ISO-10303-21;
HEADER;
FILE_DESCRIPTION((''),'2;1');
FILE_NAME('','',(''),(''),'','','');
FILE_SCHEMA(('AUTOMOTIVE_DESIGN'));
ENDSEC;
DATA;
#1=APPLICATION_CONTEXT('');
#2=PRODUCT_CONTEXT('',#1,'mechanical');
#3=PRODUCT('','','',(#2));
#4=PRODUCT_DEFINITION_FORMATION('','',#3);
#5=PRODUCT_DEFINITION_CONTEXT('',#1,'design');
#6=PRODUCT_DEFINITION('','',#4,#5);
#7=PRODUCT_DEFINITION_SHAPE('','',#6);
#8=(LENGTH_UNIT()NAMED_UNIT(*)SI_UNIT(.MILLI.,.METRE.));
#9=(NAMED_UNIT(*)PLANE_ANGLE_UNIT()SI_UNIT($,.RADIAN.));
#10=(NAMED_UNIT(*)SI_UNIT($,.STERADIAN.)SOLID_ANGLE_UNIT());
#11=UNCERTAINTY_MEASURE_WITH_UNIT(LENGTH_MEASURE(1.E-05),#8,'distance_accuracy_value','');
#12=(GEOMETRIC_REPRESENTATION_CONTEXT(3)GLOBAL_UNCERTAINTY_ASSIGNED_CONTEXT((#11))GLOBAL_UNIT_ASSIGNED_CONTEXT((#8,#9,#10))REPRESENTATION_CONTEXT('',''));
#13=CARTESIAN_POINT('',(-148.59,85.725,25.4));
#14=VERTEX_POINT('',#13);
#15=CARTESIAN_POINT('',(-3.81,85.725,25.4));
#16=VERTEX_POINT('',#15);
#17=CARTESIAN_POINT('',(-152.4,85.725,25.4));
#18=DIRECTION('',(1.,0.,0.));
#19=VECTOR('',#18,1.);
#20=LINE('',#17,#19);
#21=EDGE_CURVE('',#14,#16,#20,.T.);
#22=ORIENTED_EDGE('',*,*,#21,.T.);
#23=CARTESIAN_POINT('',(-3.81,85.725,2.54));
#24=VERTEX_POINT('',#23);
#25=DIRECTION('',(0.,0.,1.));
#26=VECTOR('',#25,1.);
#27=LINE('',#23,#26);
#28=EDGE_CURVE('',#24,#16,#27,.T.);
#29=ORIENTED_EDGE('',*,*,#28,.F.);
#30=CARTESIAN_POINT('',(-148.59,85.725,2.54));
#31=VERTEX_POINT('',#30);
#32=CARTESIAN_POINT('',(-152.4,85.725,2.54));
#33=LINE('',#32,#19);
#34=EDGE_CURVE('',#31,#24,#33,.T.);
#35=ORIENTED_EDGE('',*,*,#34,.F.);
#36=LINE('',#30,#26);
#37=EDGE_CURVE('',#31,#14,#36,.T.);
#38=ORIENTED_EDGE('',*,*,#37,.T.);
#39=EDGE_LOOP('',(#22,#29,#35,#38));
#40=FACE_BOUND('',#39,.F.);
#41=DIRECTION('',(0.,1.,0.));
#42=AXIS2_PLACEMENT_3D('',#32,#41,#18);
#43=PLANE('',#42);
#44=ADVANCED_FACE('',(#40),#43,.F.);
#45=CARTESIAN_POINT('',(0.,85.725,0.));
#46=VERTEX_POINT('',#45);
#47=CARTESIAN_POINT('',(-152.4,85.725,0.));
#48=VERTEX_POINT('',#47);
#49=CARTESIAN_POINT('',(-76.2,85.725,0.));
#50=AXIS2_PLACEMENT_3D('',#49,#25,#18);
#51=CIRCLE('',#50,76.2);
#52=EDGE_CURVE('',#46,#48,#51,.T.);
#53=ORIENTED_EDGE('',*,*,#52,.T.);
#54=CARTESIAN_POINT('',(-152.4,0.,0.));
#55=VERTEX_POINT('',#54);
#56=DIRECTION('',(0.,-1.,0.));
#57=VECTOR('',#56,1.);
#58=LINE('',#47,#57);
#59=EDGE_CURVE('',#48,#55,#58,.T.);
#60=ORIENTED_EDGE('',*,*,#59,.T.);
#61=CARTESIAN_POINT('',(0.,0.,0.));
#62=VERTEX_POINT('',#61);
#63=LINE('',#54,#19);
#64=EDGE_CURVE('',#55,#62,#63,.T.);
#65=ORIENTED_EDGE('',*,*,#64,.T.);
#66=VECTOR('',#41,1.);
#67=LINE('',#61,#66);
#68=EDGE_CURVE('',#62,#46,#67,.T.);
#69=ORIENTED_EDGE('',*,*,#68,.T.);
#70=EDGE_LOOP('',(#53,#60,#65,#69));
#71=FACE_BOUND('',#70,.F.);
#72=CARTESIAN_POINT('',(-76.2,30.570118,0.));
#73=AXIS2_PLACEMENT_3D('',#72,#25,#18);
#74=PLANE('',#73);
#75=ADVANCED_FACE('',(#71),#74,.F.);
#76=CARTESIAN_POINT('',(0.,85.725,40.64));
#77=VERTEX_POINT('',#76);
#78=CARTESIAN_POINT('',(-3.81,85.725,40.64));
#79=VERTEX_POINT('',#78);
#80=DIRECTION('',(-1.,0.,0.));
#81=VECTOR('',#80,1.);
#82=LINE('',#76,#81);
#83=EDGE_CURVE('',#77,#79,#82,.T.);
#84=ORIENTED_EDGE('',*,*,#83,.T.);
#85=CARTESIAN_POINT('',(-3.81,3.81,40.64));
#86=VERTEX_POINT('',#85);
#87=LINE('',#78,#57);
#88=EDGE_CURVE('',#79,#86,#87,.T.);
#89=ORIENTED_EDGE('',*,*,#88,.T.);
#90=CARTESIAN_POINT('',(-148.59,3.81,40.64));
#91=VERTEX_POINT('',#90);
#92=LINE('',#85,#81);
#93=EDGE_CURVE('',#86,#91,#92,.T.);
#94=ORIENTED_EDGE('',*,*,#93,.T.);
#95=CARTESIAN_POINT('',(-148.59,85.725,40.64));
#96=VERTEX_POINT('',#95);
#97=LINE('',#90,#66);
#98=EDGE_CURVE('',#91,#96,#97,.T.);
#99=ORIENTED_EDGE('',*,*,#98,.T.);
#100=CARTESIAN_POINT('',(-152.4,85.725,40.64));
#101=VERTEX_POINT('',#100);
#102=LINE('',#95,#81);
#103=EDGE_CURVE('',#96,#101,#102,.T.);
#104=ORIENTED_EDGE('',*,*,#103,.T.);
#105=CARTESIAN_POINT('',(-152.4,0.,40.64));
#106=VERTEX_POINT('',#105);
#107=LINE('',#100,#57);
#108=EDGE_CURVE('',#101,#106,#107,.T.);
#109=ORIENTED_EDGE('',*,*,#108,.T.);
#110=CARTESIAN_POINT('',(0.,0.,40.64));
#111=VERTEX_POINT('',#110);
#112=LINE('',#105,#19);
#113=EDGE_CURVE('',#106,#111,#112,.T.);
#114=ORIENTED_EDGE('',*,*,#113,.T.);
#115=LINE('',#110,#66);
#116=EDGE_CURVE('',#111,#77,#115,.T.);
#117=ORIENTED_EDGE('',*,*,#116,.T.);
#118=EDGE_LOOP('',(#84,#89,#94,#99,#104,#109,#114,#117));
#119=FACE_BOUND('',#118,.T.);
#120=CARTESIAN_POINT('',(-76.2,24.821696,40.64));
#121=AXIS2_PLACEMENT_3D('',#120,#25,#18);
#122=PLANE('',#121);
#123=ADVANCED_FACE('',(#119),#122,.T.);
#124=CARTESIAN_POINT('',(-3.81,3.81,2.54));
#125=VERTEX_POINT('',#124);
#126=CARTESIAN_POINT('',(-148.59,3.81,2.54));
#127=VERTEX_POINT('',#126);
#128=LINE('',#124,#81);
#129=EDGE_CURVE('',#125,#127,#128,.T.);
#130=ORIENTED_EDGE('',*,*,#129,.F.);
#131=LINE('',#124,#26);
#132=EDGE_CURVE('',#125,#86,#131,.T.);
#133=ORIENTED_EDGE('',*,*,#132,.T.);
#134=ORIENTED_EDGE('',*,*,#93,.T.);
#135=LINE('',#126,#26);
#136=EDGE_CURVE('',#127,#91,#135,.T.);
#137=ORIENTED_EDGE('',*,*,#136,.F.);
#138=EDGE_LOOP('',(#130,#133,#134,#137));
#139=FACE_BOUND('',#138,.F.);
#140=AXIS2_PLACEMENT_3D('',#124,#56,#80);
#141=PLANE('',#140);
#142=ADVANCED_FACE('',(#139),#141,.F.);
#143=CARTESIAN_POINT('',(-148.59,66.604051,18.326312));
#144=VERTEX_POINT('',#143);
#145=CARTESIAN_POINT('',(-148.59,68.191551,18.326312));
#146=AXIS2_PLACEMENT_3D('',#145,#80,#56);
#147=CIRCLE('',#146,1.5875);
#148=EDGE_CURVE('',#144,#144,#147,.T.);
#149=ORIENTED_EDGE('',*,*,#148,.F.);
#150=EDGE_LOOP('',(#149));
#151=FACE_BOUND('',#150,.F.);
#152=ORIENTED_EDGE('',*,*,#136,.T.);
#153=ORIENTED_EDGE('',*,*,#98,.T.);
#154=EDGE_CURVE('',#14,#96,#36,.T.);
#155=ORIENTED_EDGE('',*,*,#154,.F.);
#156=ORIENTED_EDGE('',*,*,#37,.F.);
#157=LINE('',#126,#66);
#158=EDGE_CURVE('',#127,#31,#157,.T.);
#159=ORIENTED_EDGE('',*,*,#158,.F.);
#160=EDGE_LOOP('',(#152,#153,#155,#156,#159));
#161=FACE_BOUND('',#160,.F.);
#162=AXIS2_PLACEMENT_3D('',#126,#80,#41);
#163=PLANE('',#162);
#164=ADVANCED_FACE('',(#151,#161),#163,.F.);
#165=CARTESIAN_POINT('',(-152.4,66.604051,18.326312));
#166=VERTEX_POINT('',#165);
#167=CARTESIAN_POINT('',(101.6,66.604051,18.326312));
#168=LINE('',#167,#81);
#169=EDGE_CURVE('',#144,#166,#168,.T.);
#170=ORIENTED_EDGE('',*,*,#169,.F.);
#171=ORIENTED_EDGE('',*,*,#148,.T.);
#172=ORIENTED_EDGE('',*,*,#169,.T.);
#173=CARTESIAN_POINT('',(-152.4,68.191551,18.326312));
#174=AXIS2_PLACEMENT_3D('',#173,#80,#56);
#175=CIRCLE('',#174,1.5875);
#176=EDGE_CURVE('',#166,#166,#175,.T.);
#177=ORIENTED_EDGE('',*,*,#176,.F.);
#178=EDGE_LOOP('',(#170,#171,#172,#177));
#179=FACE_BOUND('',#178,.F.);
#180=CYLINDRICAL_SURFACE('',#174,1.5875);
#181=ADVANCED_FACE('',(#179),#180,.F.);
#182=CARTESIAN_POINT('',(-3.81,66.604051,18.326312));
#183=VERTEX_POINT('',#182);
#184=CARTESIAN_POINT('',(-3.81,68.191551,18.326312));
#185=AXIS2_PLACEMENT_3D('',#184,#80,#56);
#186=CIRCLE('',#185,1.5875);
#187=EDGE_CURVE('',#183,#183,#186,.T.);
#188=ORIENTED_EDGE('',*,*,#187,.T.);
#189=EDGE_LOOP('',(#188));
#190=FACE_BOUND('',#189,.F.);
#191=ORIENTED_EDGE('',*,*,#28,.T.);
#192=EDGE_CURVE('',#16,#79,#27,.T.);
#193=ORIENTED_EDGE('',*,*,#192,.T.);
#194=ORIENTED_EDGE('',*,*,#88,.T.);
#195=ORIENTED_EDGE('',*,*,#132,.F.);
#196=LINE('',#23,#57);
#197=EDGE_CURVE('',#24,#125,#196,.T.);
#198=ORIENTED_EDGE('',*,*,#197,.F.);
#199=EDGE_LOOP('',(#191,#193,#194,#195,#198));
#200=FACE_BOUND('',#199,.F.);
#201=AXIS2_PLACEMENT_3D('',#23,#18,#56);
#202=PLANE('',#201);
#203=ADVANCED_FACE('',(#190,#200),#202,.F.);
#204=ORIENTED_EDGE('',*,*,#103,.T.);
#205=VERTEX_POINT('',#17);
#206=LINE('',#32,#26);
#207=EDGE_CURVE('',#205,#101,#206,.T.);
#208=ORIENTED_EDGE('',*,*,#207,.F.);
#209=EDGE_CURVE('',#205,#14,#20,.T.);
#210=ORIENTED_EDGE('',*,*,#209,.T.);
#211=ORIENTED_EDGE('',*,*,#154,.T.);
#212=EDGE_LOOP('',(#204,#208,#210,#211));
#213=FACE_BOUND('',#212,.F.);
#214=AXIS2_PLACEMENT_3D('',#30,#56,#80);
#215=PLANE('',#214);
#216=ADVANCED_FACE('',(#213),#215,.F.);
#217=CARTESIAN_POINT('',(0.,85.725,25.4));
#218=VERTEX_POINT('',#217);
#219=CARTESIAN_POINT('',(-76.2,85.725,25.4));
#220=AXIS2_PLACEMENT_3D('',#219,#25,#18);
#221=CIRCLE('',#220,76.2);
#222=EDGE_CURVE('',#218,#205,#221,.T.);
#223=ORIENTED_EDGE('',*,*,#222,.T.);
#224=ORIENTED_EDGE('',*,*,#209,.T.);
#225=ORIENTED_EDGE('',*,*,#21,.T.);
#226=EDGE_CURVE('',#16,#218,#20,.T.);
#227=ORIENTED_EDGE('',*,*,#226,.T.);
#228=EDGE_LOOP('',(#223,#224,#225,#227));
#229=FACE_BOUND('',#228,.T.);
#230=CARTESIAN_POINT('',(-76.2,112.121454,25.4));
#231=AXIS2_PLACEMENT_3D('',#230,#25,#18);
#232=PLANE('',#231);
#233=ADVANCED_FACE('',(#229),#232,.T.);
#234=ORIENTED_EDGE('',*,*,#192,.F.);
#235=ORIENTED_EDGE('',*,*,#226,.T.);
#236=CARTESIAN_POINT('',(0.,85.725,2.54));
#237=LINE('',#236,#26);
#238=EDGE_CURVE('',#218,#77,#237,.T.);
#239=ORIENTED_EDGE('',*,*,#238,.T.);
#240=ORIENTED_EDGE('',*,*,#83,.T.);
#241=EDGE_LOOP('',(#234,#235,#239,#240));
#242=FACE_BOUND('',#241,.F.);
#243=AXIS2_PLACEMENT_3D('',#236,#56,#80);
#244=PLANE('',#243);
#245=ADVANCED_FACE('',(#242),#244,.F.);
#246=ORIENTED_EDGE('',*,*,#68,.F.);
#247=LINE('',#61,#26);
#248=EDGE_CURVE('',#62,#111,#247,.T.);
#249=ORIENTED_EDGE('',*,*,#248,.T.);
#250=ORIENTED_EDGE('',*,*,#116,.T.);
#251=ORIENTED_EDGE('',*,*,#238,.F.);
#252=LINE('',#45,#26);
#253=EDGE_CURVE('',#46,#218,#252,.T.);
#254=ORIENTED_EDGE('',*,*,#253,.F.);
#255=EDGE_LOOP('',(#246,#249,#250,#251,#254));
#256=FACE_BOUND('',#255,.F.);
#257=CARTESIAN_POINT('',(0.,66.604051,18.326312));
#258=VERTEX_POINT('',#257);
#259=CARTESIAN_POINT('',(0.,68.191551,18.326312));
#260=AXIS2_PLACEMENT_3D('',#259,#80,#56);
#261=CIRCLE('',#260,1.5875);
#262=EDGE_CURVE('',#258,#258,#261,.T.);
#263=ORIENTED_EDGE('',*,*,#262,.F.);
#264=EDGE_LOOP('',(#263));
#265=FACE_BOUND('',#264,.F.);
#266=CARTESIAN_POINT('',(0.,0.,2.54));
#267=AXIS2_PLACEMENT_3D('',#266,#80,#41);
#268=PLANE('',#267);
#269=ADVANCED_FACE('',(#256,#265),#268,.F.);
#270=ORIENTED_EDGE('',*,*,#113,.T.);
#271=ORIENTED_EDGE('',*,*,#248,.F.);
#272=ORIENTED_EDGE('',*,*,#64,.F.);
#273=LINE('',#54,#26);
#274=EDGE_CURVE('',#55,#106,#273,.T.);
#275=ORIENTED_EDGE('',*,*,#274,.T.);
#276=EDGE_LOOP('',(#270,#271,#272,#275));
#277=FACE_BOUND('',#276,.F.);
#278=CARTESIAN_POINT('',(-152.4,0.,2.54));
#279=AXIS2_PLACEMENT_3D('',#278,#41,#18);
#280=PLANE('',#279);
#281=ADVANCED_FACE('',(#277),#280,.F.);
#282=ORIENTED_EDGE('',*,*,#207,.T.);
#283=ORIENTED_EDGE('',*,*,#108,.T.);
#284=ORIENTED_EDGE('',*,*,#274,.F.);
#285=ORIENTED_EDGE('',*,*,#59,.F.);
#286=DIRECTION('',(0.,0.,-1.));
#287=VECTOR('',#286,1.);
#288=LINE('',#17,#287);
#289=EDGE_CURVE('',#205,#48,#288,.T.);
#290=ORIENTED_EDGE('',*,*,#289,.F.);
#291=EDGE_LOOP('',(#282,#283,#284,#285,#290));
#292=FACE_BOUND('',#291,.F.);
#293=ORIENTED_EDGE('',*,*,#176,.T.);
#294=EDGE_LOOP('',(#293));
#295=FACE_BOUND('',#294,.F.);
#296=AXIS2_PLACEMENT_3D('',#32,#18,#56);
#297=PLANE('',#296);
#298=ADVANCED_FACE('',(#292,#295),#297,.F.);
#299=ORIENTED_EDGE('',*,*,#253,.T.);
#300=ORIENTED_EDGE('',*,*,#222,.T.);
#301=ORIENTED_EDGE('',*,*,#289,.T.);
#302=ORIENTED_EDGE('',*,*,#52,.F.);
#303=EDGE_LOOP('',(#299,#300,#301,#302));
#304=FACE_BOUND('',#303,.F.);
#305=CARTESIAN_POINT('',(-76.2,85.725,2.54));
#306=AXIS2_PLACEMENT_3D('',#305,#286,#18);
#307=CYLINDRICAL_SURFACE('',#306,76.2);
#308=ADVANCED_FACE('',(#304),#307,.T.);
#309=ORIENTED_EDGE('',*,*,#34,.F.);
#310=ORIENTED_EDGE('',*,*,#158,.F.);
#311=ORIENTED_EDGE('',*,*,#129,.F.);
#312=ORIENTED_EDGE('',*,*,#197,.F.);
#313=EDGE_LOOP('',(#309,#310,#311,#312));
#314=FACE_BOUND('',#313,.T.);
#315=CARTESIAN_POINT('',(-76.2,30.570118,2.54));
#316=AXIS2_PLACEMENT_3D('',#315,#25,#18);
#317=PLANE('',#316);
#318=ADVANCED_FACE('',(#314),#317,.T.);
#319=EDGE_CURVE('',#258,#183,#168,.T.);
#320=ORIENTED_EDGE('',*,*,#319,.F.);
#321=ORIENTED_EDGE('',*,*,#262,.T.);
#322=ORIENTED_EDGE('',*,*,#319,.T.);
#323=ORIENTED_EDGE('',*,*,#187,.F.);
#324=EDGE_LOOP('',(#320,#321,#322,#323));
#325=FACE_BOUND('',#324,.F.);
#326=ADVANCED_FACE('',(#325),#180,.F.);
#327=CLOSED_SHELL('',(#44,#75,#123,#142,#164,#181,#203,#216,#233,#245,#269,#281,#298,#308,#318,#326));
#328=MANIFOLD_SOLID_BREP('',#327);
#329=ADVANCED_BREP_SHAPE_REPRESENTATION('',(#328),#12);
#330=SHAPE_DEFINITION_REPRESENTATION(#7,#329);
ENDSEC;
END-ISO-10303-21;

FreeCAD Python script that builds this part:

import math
import FreeCAD as App
import Part
import Sketcher

V = App.Vector
Q = App.Units.Quantity


def add_polygon(sketch, points):
    """Adds a closed chain of lines whose ends are joined by coincident constraints."""
    first, n = sketch.GeometryCount, len(points)
    for a, b in zip(points, points[1:] + points[:1]):
        sketch.addGeometry(Part.LineSegment(App.Vector(*a, 0), App.Vector(*b, 0)), False)
    for i in range(n):
        sketch.addConstraint(Sketcher.Constraint("Coincident", first + i, 2, first + (i + 1) % n, 1))

doc = App.newDocument("Part")
body = doc.addObject("PartDesign::Body", "Body")

# Sketch on XY plane
sketch1 = body.newObject("Sketcher::SketchObject", "Sketch")
sketch1.AttachmentSupport = (doc.getObject("XY_Plane"), [""])
sketch1.MapMode = "FlatFace"
sketch1.addGeometry(Part.LineSegment(V(-152, 0, 0), V(0, 0, 0)), False)
sketch1.addGeometry(Part.LineSegment(V(0, 0, 0), V(0, 86, 0)), False)
sketch1.addGeometry(Part.ArcOfCircle(Part.Circle(V(-76, 86, 0), V(0, 0, 1), 76), math.radians(0), math.radians(180)), False)
sketch1.addGeometry(Part.LineSegment(V(-152, 86, 0), V(-152, 0, 0)), False)
sketch1.addConstraint(Sketcher.Constraint("Coincident", 0, 2, 1, 1))
sketch1.addConstraint(Sketcher.Constraint("Tangent", 1, 2, 2, 1))
sketch1.addConstraint(Sketcher.Constraint("Tangent", 2, 2, 3, 1))
sketch1.addConstraint(Sketcher.Constraint("Coincident", 3, 2, 0, 1))
sketch1.addConstraint(Sketcher.Constraint("Horizontal", 0))
sketch1.addConstraint(Sketcher.Constraint("Vertical", 1))
sketch1.addConstraint(Sketcher.Constraint("Vertical", 3))
sketch1.addConstraint(Sketcher.Constraint("Coincident", 0, 2, -1, 1))
sketch1.addConstraint(Sketcher.Constraint("Radius", 2, Q("3 in")))
sketch1.addConstraint(Sketcher.Constraint("DistanceY", 1, 1, 1, 2, Q("3.375 in")))
pad1 = body.newObject("PartDesign::Pad", "Pad")
pad1.Profile = sketch1
pad1.Length = Q("0.1 in")

# Sketch on XY plane
sketch2 = body.newObject("Sketcher::SketchObject", "Sketch001")
sketch2.AttachmentSupport = (doc.getObject("XY_Plane"), [""])
sketch2.MapMode = "FlatFace"
sketch2.AttachmentOffset = App.Placement(V(0, 0, 0.1 * 25.4), App.Rotation())
sketch2.addGeometry(Part.LineSegment(V(-152, 86, 0), V(0, 86, 0)), False)
sketch2.addGeometry(Part.ArcOfCircle(Part.Circle(V(-76, 86, 0), V(0, 0, 1), 76), math.radians(0), math.radians(180)), False)
sketch2.addConstraint(Sketcher.Constraint("Coincident", 0, 1, 1, 2))
sketch2.addConstraint(Sketcher.Constraint("Coincident", 1, 1, 0, 2))
sketch2.addConstraint(Sketcher.Constraint("Horizontal", 0))
sketch2.addConstraint(Sketcher.Constraint("PointOnObject", 1, 1, -2))
sketch2.addConstraint(Sketcher.Constraint("Horizontal", 1, 3, 0, 1))
sketch2.addConstraint(Sketcher.Constraint("Radius", 1, Q("3 in")))
sketch2.addConstraint(Sketcher.Constraint("DistanceY", -1, 1, 1, 3, Q("3.375 in")))
pad2 = body.newObject("PartDesign::Pad", "Pad001")
pad2.Profile = sketch2
pad2.Length = Q("0.9 in")

# Sketch on XY plane
sketch3 = body.newObject("Sketcher::SketchObject", "Sketch002")
sketch3.AttachmentSupport = (doc.getObject("XY_Plane"), [""])
sketch3.MapMode = "FlatFace"
sketch3.AttachmentOffset = App.Placement(V(0, 0, 0.1 * 25.4), App.Rotation())
add_polygon(sketch3, [(-3.8, 3.8), (-148.6, 3.8), (-148.6, 85.7), (-152.4, 85.7), (-152.4, 0), (0, 0), (0, 85.7), (-3.8, 85.7)])  # lines 0-7
sketch3.addConstraint(Sketcher.Constraint("Horizontal", 0))
sketch3.addConstraint(Sketcher.Constraint("Vertical", 1))
sketch3.addConstraint(Sketcher.Constraint("Horizontal", 2))
sketch3.addConstraint(Sketcher.Constraint("Vertical", 3))
sketch3.addConstraint(Sketcher.Constraint("Horizontal", 4))
sketch3.addConstraint(Sketcher.Constraint("Vertical", 5))
sketch3.addConstraint(Sketcher.Constraint("Horizontal", 6))
sketch3.addConstraint(Sketcher.Constraint("Vertical", 7))
sketch3.addConstraint(Sketcher.Constraint("Coincident", 4, 2, -1, 1))
sketch3.addConstraint(Sketcher.Constraint("Horizontal", 2, 2, 5, 2))
sketch3.addConstraint(Sketcher.Constraint("Equal", 2, 6))
sketch3.addConstraint(Sketcher.Constraint("DistanceX", 4, 1, 4, 2, Q("6 in")))
sketch3.addConstraint(Sketcher.Constraint("DistanceX", 0, 2, 0, 1, Q("5.7 in")))
sketch3.addConstraint(Sketcher.Constraint("DistanceY", 1, 1, 1, 2, Q("3.225 in")))
sketch3.addConstraint(Sketcher.Constraint("DistanceY", 3, 2, 3, 1, Q("3.375 in")))
pad3 = body.newObject("PartDesign::Pad", "Pad002")
pad3.Profile = sketch3
pad3.Length = Q("1.5 in")

# Sketch on YZ plane
sketch4 = body.newObject("Sketcher::SketchObject", "Sketch003")
sketch4.AttachmentSupport = (doc.getObject("YZ_Plane"), [""])
sketch4.MapMode = "FlatFace"
sketch4.AttachmentOffset = App.Placement(V(0, 0, -6 * 25.4), App.Rotation())
sketch4.addGeometry(Part.Circle(V(68.2, 18.3, 0), V(0, 0, 1), 1.6), False)
sketch4.addConstraint(Sketcher.Constraint("Diameter", 0, Q("0.125 in")))
sketch4.addConstraint(Sketcher.Constraint("DistanceX", -1, 1, 0, 3, Q("68.191551 mm")))
sketch4.addConstraint(Sketcher.Constraint("DistanceY", -1, 1, 0, 3, Q("18.326312 mm")))
pocket1 = body.newObject("PartDesign::Pocket", "Pocket")
pocket1.Profile = sketch4
pocket1.Length = Q("20 in")
pocket1.Midplane = True

doc.recompute()
